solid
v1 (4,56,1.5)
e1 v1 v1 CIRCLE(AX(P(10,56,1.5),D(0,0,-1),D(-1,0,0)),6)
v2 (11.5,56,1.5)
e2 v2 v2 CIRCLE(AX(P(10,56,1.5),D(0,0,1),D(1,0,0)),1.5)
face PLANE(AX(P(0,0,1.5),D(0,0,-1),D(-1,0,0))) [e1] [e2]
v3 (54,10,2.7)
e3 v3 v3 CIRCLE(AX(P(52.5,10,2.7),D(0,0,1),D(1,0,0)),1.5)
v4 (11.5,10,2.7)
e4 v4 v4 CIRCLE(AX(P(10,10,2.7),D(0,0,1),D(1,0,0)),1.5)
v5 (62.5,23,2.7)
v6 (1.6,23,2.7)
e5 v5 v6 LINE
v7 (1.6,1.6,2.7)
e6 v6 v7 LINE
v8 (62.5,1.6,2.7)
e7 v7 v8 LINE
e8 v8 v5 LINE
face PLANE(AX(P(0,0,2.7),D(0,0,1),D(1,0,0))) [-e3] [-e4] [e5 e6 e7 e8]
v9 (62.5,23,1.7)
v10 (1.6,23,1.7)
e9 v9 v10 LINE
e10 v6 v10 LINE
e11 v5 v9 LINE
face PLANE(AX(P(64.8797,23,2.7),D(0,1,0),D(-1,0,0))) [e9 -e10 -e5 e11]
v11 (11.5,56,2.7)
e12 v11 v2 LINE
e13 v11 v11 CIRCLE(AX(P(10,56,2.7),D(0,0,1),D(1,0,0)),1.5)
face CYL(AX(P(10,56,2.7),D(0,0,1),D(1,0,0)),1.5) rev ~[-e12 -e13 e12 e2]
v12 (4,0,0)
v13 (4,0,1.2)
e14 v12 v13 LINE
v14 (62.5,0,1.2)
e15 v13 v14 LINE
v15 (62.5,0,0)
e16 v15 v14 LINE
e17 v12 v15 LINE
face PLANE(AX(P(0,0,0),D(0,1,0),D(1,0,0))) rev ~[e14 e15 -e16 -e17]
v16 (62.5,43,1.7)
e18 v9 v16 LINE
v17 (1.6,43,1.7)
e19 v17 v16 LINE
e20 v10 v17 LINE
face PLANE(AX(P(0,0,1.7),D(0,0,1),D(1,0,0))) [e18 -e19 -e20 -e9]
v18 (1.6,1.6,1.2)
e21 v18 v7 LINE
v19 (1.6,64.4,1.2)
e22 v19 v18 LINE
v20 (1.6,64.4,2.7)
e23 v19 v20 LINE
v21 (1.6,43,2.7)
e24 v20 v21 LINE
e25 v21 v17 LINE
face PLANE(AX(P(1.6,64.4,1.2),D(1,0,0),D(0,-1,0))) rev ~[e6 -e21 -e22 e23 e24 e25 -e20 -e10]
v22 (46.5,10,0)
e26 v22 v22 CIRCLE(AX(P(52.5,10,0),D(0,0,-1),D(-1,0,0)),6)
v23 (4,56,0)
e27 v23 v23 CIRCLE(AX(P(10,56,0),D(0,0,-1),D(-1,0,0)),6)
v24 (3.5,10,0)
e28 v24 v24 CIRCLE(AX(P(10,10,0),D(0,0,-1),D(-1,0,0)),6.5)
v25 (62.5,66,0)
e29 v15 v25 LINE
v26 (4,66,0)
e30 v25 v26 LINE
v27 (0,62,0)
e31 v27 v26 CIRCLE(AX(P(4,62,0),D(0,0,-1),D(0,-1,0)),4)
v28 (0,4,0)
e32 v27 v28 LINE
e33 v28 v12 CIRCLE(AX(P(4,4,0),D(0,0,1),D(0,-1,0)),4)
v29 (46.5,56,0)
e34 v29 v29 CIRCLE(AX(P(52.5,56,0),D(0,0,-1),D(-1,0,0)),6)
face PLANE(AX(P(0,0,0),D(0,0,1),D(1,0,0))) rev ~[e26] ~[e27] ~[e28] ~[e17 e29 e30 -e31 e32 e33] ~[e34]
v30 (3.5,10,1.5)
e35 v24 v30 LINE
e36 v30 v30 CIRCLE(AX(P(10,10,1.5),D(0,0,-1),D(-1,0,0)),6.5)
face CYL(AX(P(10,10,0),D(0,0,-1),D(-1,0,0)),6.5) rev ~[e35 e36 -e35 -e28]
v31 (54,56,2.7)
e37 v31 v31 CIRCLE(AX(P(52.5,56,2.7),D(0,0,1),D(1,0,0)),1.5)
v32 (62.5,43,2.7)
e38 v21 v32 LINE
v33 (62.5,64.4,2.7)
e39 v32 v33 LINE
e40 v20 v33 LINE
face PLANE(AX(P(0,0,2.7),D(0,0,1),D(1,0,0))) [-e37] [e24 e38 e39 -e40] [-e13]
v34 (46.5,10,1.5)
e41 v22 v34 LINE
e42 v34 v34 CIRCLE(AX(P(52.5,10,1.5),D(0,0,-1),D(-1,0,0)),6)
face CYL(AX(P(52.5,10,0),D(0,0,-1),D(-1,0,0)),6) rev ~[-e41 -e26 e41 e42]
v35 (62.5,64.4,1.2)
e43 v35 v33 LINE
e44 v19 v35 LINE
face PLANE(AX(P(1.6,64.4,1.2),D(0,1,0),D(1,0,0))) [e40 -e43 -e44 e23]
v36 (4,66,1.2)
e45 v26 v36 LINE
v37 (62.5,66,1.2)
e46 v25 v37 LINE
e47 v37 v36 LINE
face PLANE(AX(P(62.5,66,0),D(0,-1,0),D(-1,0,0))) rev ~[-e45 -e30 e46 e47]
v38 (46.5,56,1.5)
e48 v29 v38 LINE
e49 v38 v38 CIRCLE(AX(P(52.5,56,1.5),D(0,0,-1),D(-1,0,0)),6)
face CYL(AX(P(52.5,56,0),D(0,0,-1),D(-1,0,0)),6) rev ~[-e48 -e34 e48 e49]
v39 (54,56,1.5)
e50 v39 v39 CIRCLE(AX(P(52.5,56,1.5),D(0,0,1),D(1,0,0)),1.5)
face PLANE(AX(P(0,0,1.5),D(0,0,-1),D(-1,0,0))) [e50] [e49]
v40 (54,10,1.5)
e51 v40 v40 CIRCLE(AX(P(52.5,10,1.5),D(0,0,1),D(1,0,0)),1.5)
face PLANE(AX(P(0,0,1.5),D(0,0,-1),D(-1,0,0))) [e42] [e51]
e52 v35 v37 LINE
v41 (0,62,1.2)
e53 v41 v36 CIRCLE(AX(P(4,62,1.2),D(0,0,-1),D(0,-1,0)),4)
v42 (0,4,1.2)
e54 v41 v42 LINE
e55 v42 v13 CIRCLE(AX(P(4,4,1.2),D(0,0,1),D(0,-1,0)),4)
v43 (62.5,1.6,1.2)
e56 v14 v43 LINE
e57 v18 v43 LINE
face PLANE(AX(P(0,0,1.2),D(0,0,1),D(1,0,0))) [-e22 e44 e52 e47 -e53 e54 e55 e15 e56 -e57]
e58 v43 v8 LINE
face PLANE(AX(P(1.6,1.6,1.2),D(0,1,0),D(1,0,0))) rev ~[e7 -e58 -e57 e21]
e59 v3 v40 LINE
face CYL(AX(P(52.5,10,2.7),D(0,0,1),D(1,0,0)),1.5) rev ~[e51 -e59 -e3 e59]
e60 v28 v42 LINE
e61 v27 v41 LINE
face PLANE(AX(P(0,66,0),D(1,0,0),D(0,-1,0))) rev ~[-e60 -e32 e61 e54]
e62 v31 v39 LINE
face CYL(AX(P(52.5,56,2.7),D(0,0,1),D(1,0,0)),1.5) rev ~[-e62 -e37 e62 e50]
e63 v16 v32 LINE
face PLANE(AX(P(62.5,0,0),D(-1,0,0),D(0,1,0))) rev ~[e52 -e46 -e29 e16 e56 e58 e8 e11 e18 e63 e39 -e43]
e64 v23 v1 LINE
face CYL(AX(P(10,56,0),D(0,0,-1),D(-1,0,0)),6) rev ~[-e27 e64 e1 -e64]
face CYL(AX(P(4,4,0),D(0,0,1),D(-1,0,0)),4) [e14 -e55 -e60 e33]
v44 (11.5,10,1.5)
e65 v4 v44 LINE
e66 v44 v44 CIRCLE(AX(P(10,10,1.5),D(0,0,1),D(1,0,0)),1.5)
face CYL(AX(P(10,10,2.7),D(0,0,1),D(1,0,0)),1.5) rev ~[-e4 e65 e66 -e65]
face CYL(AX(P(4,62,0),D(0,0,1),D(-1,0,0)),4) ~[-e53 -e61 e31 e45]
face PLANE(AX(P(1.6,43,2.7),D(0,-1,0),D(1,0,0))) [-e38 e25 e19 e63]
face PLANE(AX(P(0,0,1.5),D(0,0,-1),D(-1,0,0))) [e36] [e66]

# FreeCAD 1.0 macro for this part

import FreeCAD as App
import Part
import Sketcher
from FreeCAD import Vector


def edges_at(feature, points):
    """Names of the edges that pass closest to the given points."""
    edges = feature.Shape.Edges
    near = lambda p: min(range(len(edges)), key=lambda i: edges[i].distToShape(Part.Vertex(*p))[0])
    return sorted({f"Edge{near(p) + 1}" for p in points})

doc = App.newDocument("Part")
params = doc.addObject("Spreadsheet::Sheet", "Params")
for row, (alias, value) in enumerate([
    ("sketch1_height", "66 mm"),
    ("sketch1_width", "62.5 mm"),
    ("pad1_length", "1.2 mm"),
    ("sketch2_width", "60.9 mm"),
    ("sketch2_height", "62.8 mm"),
    ("pad2_length", "1.5 mm"),
    ("sketch3_height", "20 mm"),
    ("pocket1_length", "1 mm"),
    ("sketch4_diameter", "3 mm"),
    ("sketch5_diameter", "12 mm"),
    ("sketch5_diameter2", "13 mm"),
    ("sketch5_diameter3", "3 mm"),
    ("pocket3_length", "1.5 mm"),
    ("fillet_radius", "4 mm"),
], start=1):
    params.set(f"A{row}", alias)
    params.set(f"B{row}", "=" + value)
    params.setAlias(f"B{row}", alias)

body = doc.addObject("PartDesign::Body", "Body")

# Sketch on XY plane
sketch1 = body.newObject("Sketcher::SketchObject", "Sketch")
sketch1.AttachmentSupport = (doc.getObject("XY_Plane"), [""])
sketch1.MapMode = "FlatFace"
sketch1.addGeometry(Part.LineSegment(Vector(0, 66, 0), Vector(0, 0, 0)), False)
sketch1.addGeometry(Part.LineSegment(Vector(0, 0, 0), Vector(62.5, 0, 0)), False)
sketch1.addGeometry(Part.LineSegment(Vector(62.5, 0, 0), Vector(62.5, 66, 0)), False)
sketch1.addGeometry(Part.LineSegment(Vector(62.5, 66, 0), Vector(0, 66, 0)), False)
sketch1.addConstraint(Sketcher.Constraint("Coincident", 0, 2, 1, 1))
sketch1.addConstraint(Sketcher.Constraint("Coincident", 1, 2, 2, 1))
sketch1.addConstraint(Sketcher.Constraint("Coincident", 2, 2, 3, 1))
sketch1.addConstraint(Sketcher.Constraint("Coincident", 3, 2, 0, 1))
sketch1.addConstraint(Sketcher.Constraint("Vertical", 0))
sketch1.addConstraint(Sketcher.Constraint("Horizontal", 1))
sketch1.addConstraint(Sketcher.Constraint("Vertical", 2))
sketch1.addConstraint(Sketcher.Constraint("Horizontal", 3))
sketch1.addConstraint(Sketcher.Constraint("Coincident", 0, 2, -1, 1))
sketch1.addConstraint(Sketcher.Constraint("DistanceY", 0, 2, 0, 1, 66.0))
sketch1.addConstraint(Sketcher.Constraint("DistanceX", 1, 1, 1, 2, 62.5))
sketch1.setExpression("Constraints[9]", "Params.sketch1_height")
sketch1.setExpression("Constraints[10]", "Params.sketch1_width")
pad1 = body.newObject("PartDesign::Pad", "Pad")
pad1.Profile = sketch1
pad1.setExpression("Length", "Params.pad1_length")

# Sketch on XY plane
sketch2 = body.newObject("Sketcher::SketchObject", "Sketch001")
sketch2.AttachmentSupport = (doc.getObject("XY_Plane"), [""])
sketch2.MapMode = "FlatFace"
sketch2.AttachmentOffset = App.Placement(Vector(0, 0, 1.2), App.Rotation())
sketch2.addGeometry(Part.LineSegment(Vector(62.5, 1.6, 0), Vector(62.5, 64.4, 0)), False)
sketch2.addGeometry(Part.LineSegment(Vector(62.5, 64.4, 0), Vector(1.6, 64.4, 0)), False)
sketch2.addGeometry(Part.LineSegment(Vector(1.6, 64.4, 0), Vector(1.6, 1.6, 0)), False)
sketch2.addGeometry(Part.LineSegment(Vector(1.6, 1.6, 0), Vector(62.5, 1.6, 0)), False)
sketch2.addConstraint(Sketcher.Constraint("Coincident", 0, 2, 1, 1))
sketch2.addConstraint(Sketcher.Constraint("Coincident", 1, 2, 2, 1))
sketch2.addConstraint(Sketcher.Constraint("Coincident", 2, 2, 3, 1))
sketch2.addConstraint(Sketcher.Constraint("Coincident", 3, 2, 0, 1))
sketch2.addConstraint(Sketcher.Constraint("Vertical", 0))
sketch2.addConstraint(Sketcher.Constraint("Horizontal", 1))
sketch2.addConstraint(Sketcher.Constraint("Vertical", 2))
sketch2.addConstraint(Sketcher.Constraint("Horizontal", 3))
sketch2.addConstraint(Sketcher.Constraint("DistanceX", -1, 1, 1, 2, 1.6))
sketch2.addConstraint(Sketcher.Constraint("DistanceY", -1, 1, 2, 2, 1.6))
sketch2.addConstraint(Sketcher.Constraint("DistanceX", 1, 2, 1, 1, 60.9))
sketch2.addConstraint(Sketcher.Constraint("DistanceY", 0, 1, 0, 2, 62.8))
sketch2.setExpression("Constraints[10]", "Params.sketch2_width")
sketch2.setExpression("Constraints[11]", "Params.sketch2_height")
pad2 = body.newObject("PartDesign::Pad", "Pad001")
pad2.Profile = sketch2
pad2.setExpression("Length", "Params.pad2_length")

# Sketch on XY plane
sketch3 = body.newObject("Sketcher::SketchObject", "Sketch002")
sketch3.AttachmentSupport = (doc.getObject("XY_Plane"), [""])
sketch3.MapMode = "FlatFace"
sketch3.AttachmentOffset = App.Placement(Vector(0, 0, 2.7), App.Rotation())
sketch3.addGeometry(Part.LineSegment(Vector(1.6, 43, 0), Vector(1.6, 23, 0)), False)
sketch3.addGeometry(Part.LineSegment(Vector(1.6, 23, 0), Vector(64.8797, 23, 0)), False)
sketch3.addGeometry(Part.LineSegment(Vector(64.8797, 23, 0), Vector(64.8797, 43, 0)), False)
sketch3.addGeometry(Part.LineSegment(Vector(64.8797, 43, 0), Vector(1.6, 43, 0)), False)
sketch3.addConstraint(Sketcher.Constraint("Coincident", 0, 2, 1, 1))
sketch3.addConstraint(Sketcher.Constraint("Coincident", 1, 2, 2, 1))
sketch3.addConstraint(Sketcher.Constraint("Coincident", 2, 2, 3, 1))
sketch3.addConstraint(Sketcher.Constraint("Coincident", 3, 2, 0, 1))
sketch3.addConstraint(Sketcher.Constraint("Vertical", 0))
sketch3.addConstraint(Sketcher.Constraint("Horizontal", 1))
sketch3.addConstraint(Sketcher.Constraint("Vertical", 2))
sketch3.addConstraint(Sketcher.Constraint("Horizontal", 3))
sketch3.addConstraint(Sketcher.Constraint("DistanceY", 0, 2, 0, 1, 20.0))
sketch3.addConstraint(Sketcher.Constraint("DistanceY", -1, 1, 0, 2, 23.0))
sketch3.addConstraint(Sketcher.Constraint("DistanceX", -1, 1, 0, 2, 1.6))
sketch3.addConstraint(Sketcher.Constraint("DistanceX", 1, 1, 1, 2, 63.2797))
sketch3.setExpression("Constraints[8]", "Params.sketch3_height")
pocket1 = body.newObject("PartDesign::Pocket", "Pocket")
pocket1.Profile = sketch3
pocket1.setExpression("Length", "Params.pocket1_length")

# Sketch on XY plane
sketch4 = body.newObject("Sketcher::SketchObject", "Sketch003")
sketch4.AttachmentSupport = (doc.getObject("XY_Plane"), [""])
sketch4.MapMode = "FlatFace"
sketch4.AttachmentOffset = App.Placement(Vector(0, 0, 2.7), App.Rotation())
sketch4.addGeometry(Part.Circle(Vector(10, 56, 0), Vector(0, 0, 1), 1.5), False)
sketch4.addGeometry(Part.Circle(Vector(52.5, 56, 0), Vector(0, 0, 1), 1.5), False)
sketch4.addGeometry(Part.Circle(Vector(10, 10, 0), Vector(0, 0, 1), 1.5), False)
sketch4.addGeometry(Part.Circle(Vector(52.5, 10, 0), Vector(0, 0, 1), 1.5), False)
sketch4.addConstraint(Sketcher.Constraint("Equal", 0, 1))
sketch4.addConstraint(Sketcher.Constraint("Equal", 1, 2))
sketch4.addConstraint(Sketcher.Constraint("Equal", 2, 3))
sketch4.addConstraint(Sketcher.Constraint("Horizontal", 0, 3, 1, 3))
sketch4.addConstraint(Sketcher.Constraint("Horizontal", 2, 3, 3, 3))
sketch4.addConstraint(Sketcher.Constraint("Vertical", 0, 3, 2, 3))
sketch4.addConstraint(Sketcher.Constraint("Vertical", 1, 3, 3, 3))
sketch4.addConstraint(Sketcher.Constraint("Diameter", 0, 3.0))
sketch4.addConstraint(Sketcher.Constraint("DistanceX", -1, 1, 0, 3, 10.0))
sketch4.addConstraint(Sketcher.Constraint("DistanceY", -1, 1, 0, 3, 56.0))
sketch4.addConstraint(Sketcher.Constraint("DistanceY", -1, 1, 2, 3, 10.0))
sketch4.addConstraint(Sketcher.Constraint("DistanceX", -1, 1, 1, 3, 52.5))
sketch4.setExpression("Constraints[7]", "Params.sketch4_diameter")
pocket2 = body.newObject("PartDesign::Pocket", "Pocket001")
pocket2.Profile = sketch4
pocket2.Type = "ThroughAll"

# Sketch on XY plane
sketch5 = body.newObject("Sketcher::SketchObject", "Sketch004")
sketch5.AttachmentSupport = (doc.getObject("XY_Plane"), [""])
sketch5.MapMode = "FlatFace"
sketch5.addGeometry(Part.Circle(Vector(52.5, 56, 0), Vector(0, 0, 1), 6), False)
sketch5.addGeometry(Part.Circle(Vector(10, 56, 0), Vector(0, 0, 1), 6), False)
sketch5.addGeometry(Part.Circle(Vector(10, 56, 0), Vector(0, 0, 1), 1.5), False)
sketch5.addGeometry(Part.Circle(Vector(52.5, 10, 0), Vector(0, 0, 1), 6), False)
sketch5.addGeometry(Part.Circle(Vector(10, 10, 0), Vector(0, 0, 1), 6.5), False)
sketch5.addGeometry(Part.Circle(Vector(10, 10, 0), Vector(0, 0, 1), 1.5), False)
sketch5.addConstraint(Sketcher.Constraint("Coincident", 2, 3, 1, 3))
sketch5.addConstraint(Sketcher.Constraint("Coincident", 5, 3, 4, 3))
sketch5.addConstraint(Sketcher.Constraint("Equal", 0, 1))
sketch5.addConstraint(Sketcher.Constraint("Equal", 1, 3))
sketch5.addConstraint(Sketcher.Constraint("Equal", 2, 5))
sketch5.addConstraint(Sketcher.Constraint("Horizontal", 0, 3, 1, 3))
sketch5.addConstraint(Sketcher.Constraint("Horizontal", 3, 3, 4, 3))
sketch5.addConstraint(Sketcher.Constraint("Vertical", 0, 3, 3, 3))
sketch5.addConstraint(Sketcher.Constraint("Vertical", 2, 3, 4, 3))
sketch5.addConstraint(Sketcher.Constraint("Diameter", 0, 12.0))
sketch5.addConstraint(Sketcher.Constraint("Diameter", 4, 13.0))
sketch5.addConstraint(Sketcher.Constraint("Diameter", 2, 3.0))
sketch5.addConstraint(Sketcher.Constraint("DistanceY", -1, 1, 0, 3, 56.0))
sketch5.addConstraint(Sketcher.Constraint("DistanceX", -1, 1, 1, 3, 10.0))
sketch5.addConstraint(Sketcher.Constraint("DistanceY", -1, 1, 3, 3, 10.0))
sketch5.addConstraint(Sketcher.Constraint("DistanceX", -1, 1, 0, 3, 52.5))
sketch5.setExpression("Constraints[9]", "Params.sketch5_diameter")
sketch5.setExpression("Constraints[10]", "Params.sketch5_diameter2")
sketch5.setExpression("Constraints[11]", "Params.sketch5_diameter3")
pocket3 = body.newObject("PartDesign::Pocket", "Pocket002")
pocket3.Profile = sketch5
pocket3.setExpression("Length", "Params.pocket3_length")
pocket3.Reversed = True
doc.recompute()

fillet = body.newObject("PartDesign::Fillet", "Fillet")
fillet.Base = (pocket3, edges_at(pocket3, [(0, 66, 0.6), (0, 0, 0.6)]))
fillet.setExpression("Radius", "Params.fillet_radius")

doc.recompute()
